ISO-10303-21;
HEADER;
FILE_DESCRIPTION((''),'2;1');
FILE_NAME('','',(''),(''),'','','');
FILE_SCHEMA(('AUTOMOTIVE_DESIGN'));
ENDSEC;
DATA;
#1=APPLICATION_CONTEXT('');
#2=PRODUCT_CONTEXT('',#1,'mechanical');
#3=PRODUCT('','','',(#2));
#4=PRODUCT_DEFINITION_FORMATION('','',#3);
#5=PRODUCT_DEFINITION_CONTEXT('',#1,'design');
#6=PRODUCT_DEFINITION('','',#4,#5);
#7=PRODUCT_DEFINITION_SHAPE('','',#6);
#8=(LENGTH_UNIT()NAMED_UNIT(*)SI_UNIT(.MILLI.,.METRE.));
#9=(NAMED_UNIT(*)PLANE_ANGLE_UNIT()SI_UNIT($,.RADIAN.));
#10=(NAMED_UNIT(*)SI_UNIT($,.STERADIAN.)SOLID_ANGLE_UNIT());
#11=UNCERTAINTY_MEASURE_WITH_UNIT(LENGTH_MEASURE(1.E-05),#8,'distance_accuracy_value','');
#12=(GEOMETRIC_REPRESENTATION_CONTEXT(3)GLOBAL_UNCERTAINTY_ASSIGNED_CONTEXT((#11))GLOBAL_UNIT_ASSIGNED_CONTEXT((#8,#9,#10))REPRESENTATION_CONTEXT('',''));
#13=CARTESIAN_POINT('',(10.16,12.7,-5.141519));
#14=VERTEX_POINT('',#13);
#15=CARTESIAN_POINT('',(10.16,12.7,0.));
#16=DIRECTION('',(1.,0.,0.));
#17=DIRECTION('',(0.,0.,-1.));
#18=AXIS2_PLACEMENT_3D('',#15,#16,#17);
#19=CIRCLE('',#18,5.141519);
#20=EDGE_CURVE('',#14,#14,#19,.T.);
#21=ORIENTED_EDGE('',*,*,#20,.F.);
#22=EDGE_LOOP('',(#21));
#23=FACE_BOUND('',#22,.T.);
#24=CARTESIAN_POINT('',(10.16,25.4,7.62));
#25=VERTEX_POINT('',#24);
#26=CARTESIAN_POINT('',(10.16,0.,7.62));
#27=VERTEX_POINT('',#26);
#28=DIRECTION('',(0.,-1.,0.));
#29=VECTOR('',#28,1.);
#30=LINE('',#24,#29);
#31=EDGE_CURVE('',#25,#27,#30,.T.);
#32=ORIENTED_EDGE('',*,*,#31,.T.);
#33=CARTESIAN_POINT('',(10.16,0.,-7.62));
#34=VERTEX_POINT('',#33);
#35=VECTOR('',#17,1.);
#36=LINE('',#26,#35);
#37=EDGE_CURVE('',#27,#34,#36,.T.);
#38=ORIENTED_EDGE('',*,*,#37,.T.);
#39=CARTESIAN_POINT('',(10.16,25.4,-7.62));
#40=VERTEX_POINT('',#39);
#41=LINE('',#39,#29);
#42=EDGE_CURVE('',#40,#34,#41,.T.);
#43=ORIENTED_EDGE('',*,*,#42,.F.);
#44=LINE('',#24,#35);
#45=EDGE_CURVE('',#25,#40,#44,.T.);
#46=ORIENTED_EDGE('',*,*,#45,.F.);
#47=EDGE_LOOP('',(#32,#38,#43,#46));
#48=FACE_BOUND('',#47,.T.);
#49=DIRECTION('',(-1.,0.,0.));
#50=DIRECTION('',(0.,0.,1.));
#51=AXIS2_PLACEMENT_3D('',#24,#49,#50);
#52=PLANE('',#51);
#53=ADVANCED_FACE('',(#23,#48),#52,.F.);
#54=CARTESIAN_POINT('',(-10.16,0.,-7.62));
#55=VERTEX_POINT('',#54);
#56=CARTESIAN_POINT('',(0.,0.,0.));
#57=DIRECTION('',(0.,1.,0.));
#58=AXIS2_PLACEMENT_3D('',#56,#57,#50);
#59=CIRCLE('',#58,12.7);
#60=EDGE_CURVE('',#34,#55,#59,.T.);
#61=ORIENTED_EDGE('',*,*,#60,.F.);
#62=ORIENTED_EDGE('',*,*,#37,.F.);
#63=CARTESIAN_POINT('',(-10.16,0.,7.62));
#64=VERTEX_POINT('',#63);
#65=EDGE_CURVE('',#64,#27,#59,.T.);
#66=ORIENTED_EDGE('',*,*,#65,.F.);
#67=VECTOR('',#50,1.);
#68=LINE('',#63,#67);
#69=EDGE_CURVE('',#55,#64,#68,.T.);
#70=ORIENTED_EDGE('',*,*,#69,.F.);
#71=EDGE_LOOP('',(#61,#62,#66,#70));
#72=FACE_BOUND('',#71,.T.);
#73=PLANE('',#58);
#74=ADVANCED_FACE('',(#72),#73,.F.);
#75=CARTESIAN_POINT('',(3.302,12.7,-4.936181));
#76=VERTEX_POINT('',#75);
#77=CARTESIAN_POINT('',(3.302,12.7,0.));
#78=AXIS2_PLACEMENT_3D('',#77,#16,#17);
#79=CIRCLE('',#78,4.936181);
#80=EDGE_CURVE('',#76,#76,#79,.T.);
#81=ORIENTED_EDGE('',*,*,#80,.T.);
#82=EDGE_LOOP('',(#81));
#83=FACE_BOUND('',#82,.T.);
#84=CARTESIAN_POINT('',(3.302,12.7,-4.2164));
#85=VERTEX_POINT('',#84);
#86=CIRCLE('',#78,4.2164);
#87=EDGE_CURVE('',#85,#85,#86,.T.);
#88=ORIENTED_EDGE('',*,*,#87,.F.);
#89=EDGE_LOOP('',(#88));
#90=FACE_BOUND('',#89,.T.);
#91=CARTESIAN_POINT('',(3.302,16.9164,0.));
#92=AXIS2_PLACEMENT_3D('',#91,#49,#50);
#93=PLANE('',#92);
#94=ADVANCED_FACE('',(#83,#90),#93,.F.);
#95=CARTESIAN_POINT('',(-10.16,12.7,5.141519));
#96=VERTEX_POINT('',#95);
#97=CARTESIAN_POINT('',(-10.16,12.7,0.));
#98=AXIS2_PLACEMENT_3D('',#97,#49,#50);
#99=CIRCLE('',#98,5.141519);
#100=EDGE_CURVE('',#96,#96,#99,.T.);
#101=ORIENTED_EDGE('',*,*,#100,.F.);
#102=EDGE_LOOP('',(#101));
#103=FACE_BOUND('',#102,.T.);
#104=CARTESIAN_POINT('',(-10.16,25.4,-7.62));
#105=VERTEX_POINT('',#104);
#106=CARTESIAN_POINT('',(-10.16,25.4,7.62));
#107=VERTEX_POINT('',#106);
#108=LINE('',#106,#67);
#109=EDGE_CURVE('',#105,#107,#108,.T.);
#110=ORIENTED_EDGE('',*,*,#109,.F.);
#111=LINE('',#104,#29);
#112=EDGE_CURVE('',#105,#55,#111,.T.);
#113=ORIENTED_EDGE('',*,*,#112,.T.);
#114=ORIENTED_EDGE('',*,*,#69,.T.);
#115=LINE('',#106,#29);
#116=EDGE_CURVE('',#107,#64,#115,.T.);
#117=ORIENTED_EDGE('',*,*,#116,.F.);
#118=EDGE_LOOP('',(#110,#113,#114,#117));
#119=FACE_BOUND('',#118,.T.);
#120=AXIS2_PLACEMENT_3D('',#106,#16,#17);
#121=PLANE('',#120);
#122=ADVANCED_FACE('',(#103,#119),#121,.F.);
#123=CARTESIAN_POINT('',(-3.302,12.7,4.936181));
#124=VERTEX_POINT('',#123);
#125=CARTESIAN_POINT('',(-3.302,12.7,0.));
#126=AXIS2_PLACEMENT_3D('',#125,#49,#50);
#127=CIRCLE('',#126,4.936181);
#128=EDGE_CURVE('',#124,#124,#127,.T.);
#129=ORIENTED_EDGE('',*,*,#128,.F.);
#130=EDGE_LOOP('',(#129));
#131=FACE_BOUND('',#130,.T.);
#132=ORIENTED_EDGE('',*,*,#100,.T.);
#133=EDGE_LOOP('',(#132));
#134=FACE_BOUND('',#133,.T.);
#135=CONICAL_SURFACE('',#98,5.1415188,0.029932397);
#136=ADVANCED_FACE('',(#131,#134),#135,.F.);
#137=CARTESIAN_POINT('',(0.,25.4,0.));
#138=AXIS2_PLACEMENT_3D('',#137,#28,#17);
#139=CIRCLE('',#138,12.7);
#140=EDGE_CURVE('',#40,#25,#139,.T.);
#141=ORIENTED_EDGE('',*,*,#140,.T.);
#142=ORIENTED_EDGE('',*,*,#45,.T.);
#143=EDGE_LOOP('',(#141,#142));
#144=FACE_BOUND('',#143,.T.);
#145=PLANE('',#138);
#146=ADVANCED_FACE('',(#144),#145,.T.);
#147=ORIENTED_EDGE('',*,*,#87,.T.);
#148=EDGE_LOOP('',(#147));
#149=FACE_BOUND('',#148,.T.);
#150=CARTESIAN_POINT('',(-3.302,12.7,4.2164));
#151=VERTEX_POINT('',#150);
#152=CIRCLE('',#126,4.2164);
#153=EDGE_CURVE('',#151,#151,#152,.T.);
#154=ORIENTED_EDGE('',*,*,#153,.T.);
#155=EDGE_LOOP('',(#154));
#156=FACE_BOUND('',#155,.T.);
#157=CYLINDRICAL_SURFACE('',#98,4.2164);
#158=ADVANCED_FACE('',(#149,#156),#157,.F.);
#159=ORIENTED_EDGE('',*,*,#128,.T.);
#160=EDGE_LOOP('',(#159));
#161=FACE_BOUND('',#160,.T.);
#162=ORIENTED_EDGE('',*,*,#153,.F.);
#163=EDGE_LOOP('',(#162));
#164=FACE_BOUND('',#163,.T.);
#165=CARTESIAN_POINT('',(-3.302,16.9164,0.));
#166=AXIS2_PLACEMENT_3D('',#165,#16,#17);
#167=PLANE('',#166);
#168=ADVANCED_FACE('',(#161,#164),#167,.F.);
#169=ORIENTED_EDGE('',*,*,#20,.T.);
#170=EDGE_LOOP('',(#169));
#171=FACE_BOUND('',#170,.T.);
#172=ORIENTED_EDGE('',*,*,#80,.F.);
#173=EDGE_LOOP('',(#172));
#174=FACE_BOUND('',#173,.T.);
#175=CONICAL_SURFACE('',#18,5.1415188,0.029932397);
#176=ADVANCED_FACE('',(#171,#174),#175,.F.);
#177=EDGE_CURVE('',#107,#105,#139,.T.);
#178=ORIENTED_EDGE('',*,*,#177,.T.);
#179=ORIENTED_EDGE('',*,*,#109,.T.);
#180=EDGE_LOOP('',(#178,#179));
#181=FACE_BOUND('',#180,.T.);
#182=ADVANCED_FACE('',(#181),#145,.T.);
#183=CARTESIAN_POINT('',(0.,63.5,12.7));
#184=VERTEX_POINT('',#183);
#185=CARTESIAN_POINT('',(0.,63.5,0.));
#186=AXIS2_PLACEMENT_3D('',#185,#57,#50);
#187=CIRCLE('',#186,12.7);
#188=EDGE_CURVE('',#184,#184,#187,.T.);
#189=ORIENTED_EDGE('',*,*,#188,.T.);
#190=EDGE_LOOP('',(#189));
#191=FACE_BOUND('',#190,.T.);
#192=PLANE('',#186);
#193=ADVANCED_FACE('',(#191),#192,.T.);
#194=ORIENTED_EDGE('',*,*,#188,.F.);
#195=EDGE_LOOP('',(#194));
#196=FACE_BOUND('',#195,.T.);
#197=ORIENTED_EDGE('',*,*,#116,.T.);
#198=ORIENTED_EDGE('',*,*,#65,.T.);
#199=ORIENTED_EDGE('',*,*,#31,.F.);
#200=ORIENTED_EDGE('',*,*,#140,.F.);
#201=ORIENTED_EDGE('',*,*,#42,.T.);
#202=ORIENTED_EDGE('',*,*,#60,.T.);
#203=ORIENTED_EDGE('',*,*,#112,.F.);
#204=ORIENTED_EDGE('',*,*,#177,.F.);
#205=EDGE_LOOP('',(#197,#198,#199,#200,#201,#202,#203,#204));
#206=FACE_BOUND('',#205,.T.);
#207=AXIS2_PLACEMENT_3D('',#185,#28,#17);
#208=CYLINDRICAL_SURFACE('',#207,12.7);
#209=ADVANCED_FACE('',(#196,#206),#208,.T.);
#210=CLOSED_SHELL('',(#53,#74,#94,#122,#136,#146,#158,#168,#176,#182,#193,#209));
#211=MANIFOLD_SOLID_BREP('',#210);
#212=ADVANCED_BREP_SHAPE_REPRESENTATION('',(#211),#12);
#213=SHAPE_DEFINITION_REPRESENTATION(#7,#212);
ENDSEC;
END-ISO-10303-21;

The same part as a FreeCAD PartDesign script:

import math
import FreeCAD as App
import Part
import Sketcher
Q = App.Units.Quantity

doc = App.newDocument("Part")
body = doc.addObject("PartDesign::Body", "Body")

sketch1 = doc.addObject("Sketcher::SketchObject", "Sketch")
body.addObject(sketch1)
sketch1.AttachmentSupport = (doc.XZ_Plane, [""])
sketch1.MapMode = "FlatFace"
sketch1.addGeometry(Part.Circle(App.Vector(0, 0, 0), App.Vector(0, 0, 1), 13), False)
sketch1.addConstraint([
    Sketcher.Constraint("Coincident", 0, 3, -1, 1),
    Sketcher.Constraint("Diameter", 0, Q("1 in")),
])
pad1 = doc.addObject("PartDesign::Pad", "Pad")
body.addObject(pad1)
pad1.Profile = sketch1
pad1.Length = Q("2.5 in")
pad1.Reversed = True

sketch2 = doc.addObject("Sketcher::SketchObject", "Sketch001")
body.addObject(sketch2)
sketch2.AttachmentSupport = (doc.XZ_Plane, [""])
sketch2.MapMode = "FlatFace"
sketch2.addGeometry([
    Part.LineSegment(App.Vector(-10, -8, 0), App.Vector(-10, 8, 0)),
    Part.ArcOfCircle(Part.Circle(App.Vector(0, 0, 0), App.Vector(0, 0, 1), 13), math.radians(143), math.radians(217)),
    Part.LineSegment(App.Vector(10, 8, 0), App.Vector(10, -8, 0)),
    Part.ArcOfCircle(Part.Circle(App.Vector(0, 0, 0), App.Vector(0, 0, 1), 13), math.radians(-37), math.radians(37)),
], False)
sketch2.addConstraint([
    Sketcher.Constraint("Coincident", 0, 1, 1, 2),
    Sketcher.Constraint("Coincident", 1, 1, 0, 2),
    Sketcher.Constraint("Coincident", 2, 1, 3, 2),
    Sketcher.Constraint("Coincident", 3, 1, 2, 2),
    Sketcher.Constraint("Vertical", 0),
    Sketcher.Constraint("Vertical", 2),
    Sketcher.Constraint("Coincident", 1, 3, -1, 1),
    Sketcher.Constraint("Coincident", 3, 3, -1, 1),
    Sketcher.Constraint("Equal", 1, 3),
    Sketcher.Constraint("Horizontal", 1, 1, 2, 1),
    Sketcher.Constraint("Radius", 1, Q("0.5 in")),
    Sketcher.Constraint("DistanceY", 0, 1, 0, 2, Q("0.6 in")),
])
pocket1 = doc.addObject("PartDesign::Pocket", "Pocket")
body.addObject(pocket1)
pocket1.Profile = sketch2
pocket1.Length = Q("1 in")

sketch3 = doc.addObject("Sketcher::SketchObject", "Sketch002")
body.addObject(sketch3)
sketch3.AttachmentSupport = (doc.XZ_Plane, [""])
sketch3.MapMode = "FlatFace"
sketch3.AttachmentOffset = App.Placement(App.Vector(0, 0, -0.5 * 25.4), App.Rotation())
sketch3.addGeometry([
    Part.LineSegment(App.Vector(4.1, 0, 0), App.Vector(-10.2, 0, 0)),
    Part.LineSegment(App.Vector(-10.2, 0, 0), App.Vector(-10.2, 5.1, 0)),
    Part.LineSegment(App.Vector(-10.2, 5.1, 0), App.Vector(-3.3, 4.9, 0)),
    Part.LineSegment(App.Vector(-3.3, 4.9, 0), App.Vector(-3.3, 4.2, 0)),
    Part.LineSegment(App.Vector(-3.3, 4.2, 0), App.Vector(1.5, 4.2, 0)),
    Part.LineSegment(App.Vector(1.5, 4.2, 0), App.Vector(4.1, 0, 0)),
], False)
sketch3.addConstraint([
    Sketcher.Constraint("Coincident", 0, 2, 1, 1),
    Sketcher.Constraint("Coincident", 1, 2, 2, 1),
    Sketcher.Constraint("Coincident", 2, 2, 3, 1),
    Sketcher.Constraint("Coincident", 3, 2, 4, 1),
    Sketcher.Constraint("Coincident", 4, 2, 5, 1),
    Sketcher.Constraint("Coincident", 5, 2, 0, 1),
    Sketcher.Constraint("Horizontal", 0),
    Sketcher.Constraint("Vertical", 1),
    Sketcher.Constraint("Vertical", 3),
    Sketcher.Constraint("Horizontal", 4),
    Sketcher.Constraint("PointOnObject", 0, 2, -1),
    Sketcher.Constraint("Angle", 5, Q("-59 deg")),
    Sketcher.Constraint("DistanceX", 4, 1, 4, 2, Q("0.19 in")),
    Sketcher.Constraint("DistanceX", 0, 2, -1, 1, Q("0.4 in")),
    Sketcher.Constraint("DistanceX", 2, 2, -1, 1, Q("0.13 in")),
    Sketcher.Constraint("DistanceY", -1, 1, 3, 2, Q("0.166 in")),
    Sketcher.Constraint("DistanceY", 1, 1, 1, 2, Q("5.141519 mm")),
    Sketcher.Constraint("DistanceY", 3, 2, 3, 1, Q("0.719781 mm")),
])
groove = doc.addObject("PartDesign::Groove", "Groove")
body.addObject(groove)
groove.Profile = sketch3
groove.ReferenceAxis = (sketch3, ["H_Axis"])
groove.Angle = 360
doc.recompute()

mirrored = doc.addObject("PartDesign::Mirrored", "Mirrored")
body.addObject(mirrored)
mirrored.Originals = [groove]
mirrored.MirrorPlane = (doc.YZ_Plane, [""])
body.Tip = mirrored

doc.recompute()
